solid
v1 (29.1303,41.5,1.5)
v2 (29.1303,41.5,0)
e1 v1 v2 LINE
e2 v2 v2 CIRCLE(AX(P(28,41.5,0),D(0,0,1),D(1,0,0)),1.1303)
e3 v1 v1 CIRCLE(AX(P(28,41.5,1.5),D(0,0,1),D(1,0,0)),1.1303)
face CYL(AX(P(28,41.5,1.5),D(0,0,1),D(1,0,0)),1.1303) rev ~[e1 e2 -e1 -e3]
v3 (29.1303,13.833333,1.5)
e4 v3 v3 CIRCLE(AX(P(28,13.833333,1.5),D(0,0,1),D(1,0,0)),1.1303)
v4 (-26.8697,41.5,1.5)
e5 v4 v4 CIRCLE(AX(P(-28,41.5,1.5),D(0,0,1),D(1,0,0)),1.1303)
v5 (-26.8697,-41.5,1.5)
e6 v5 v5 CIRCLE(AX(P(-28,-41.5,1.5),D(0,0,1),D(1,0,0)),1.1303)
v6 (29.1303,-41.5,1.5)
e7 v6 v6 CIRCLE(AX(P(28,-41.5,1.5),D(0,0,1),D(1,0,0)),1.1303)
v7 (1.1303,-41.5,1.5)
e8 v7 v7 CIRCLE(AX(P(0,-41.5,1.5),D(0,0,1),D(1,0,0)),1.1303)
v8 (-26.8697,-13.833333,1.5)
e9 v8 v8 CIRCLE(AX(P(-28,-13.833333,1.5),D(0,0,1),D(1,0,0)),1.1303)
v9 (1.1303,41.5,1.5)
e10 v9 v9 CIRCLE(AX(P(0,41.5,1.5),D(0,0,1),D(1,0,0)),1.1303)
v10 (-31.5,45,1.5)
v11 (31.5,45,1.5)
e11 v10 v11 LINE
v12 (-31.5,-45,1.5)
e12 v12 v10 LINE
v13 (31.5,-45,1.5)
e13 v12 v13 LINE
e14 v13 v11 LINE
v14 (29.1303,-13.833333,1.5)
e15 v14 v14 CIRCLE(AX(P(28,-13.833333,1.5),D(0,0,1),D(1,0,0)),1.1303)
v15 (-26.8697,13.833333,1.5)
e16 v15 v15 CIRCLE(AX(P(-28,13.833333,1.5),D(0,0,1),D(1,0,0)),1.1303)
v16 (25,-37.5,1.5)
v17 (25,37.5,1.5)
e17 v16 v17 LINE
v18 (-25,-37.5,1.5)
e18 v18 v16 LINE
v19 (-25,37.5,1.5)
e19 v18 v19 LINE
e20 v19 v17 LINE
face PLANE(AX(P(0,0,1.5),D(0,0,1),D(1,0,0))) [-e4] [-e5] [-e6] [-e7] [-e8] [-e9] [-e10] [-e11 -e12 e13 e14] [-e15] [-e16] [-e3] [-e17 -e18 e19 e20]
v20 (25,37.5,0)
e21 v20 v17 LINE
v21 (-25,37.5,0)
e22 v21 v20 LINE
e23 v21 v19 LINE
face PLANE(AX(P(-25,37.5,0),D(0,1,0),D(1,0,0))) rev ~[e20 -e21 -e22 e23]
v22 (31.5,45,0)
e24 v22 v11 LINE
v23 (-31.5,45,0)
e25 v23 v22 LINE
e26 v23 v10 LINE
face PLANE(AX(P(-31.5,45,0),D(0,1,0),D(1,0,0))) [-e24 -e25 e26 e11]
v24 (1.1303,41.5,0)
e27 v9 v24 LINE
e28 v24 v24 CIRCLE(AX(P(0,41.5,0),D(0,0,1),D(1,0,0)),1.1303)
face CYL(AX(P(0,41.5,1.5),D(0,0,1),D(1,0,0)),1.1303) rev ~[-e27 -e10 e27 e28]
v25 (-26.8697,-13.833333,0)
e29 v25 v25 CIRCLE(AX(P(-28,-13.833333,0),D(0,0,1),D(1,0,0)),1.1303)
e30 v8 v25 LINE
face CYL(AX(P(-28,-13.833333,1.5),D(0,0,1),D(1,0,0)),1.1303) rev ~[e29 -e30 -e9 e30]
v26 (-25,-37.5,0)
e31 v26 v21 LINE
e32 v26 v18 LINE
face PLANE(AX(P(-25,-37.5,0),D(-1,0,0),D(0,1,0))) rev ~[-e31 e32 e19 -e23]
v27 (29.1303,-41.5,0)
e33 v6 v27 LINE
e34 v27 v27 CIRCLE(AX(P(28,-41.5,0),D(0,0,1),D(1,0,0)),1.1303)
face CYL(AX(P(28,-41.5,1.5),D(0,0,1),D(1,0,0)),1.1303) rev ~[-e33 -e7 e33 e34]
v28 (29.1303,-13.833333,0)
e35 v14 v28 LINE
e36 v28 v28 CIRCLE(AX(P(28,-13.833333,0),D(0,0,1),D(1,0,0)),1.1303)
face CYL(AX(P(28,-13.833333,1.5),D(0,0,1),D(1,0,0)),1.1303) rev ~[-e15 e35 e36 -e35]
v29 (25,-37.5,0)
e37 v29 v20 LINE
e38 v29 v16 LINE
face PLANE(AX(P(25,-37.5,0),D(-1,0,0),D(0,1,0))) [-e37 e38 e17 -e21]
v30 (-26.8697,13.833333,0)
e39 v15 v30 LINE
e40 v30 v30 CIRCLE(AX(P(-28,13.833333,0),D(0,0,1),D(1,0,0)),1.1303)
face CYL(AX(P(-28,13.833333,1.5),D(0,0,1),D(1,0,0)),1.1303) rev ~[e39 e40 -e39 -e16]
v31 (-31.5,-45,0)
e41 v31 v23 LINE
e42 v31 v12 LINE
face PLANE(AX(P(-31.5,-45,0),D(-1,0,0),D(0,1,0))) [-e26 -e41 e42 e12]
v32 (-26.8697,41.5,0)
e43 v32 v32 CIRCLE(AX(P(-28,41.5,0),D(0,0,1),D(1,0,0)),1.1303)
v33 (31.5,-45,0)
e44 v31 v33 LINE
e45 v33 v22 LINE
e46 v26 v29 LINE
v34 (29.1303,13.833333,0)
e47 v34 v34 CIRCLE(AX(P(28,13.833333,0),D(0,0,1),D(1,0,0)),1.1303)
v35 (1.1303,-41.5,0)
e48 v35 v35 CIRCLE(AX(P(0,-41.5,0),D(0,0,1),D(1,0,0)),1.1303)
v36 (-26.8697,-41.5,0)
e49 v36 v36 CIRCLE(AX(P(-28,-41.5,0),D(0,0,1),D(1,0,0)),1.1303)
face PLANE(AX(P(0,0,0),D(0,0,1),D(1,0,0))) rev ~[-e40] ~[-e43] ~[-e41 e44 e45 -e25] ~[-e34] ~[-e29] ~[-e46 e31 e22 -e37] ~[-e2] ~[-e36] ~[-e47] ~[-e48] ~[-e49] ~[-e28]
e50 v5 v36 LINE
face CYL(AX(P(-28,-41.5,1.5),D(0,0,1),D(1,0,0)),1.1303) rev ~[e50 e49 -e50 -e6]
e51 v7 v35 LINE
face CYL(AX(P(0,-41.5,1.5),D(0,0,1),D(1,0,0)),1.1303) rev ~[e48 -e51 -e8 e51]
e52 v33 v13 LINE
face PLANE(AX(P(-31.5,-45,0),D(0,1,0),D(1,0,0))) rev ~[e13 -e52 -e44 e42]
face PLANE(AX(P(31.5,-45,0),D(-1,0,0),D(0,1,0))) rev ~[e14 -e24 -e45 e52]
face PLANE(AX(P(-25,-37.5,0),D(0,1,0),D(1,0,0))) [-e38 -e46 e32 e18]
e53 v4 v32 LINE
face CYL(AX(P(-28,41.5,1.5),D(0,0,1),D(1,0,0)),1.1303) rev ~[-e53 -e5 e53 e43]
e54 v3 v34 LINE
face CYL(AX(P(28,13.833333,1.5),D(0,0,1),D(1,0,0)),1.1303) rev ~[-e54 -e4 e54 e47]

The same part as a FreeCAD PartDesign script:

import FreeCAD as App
import Part
import Sketcher
from FreeCAD import Vector

doc = App.newDocument("Part")
params = doc.addObject("Spreadsheet::Sheet", "Params")
for row, (alias, value) in enumerate([
    ("sketch1_width", "63 mm"),
    ("sketch1_width2", "50 mm"),
    ("sketch1_height", "90 mm"),
    ("sketch1_height2", "75 mm"),
    ("pad1_length", "1.5 mm"),
    ("pocket1_length", "25 mm"),
], start=1):
    params.set(f"A{row}", alias)
    params.set(f"B{row}", "=" + value)
    params.setAlias(f"B{row}", alias)

body = doc.addObject("PartDesign::Body", "Body")

# Sketch on XY plane
sketch1 = body.newObject("Sketcher::SketchObject", "Sketch")
sketch1.AttachmentSupport = (doc.getObject("XY_Plane"), [""])
sketch1.MapMode = "FlatFace"
sketch1.addGeometry([
    Part.LineSegment(Vector(-31.5, 45, 0), Vector(-31.5, -45, 0)),  # 0
    Part.LineSegment(Vector(-31.5, -45, 0), Vector(31.5, -45, 0)),  # 1
    Part.LineSegment(Vector(31.5, -45, 0), Vector(31.5, 45, 0)),  # 2
    Part.LineSegment(Vector(31.5, 45, 0), Vector(-31.5, 45, 0)),  # 3
    Part.LineSegment(Vector(25, -37.5, 0), Vector(-25, -37.5, 0)),  # 4
    Part.LineSegment(Vector(-25, -37.5, 0), Vector(-25, 37.5, 0)),  # 5
    Part.LineSegment(Vector(-25, 37.5, 0), Vector(25, 37.5, 0)),  # 6
    Part.LineSegment(Vector(25, 37.5, 0), Vector(25, -37.5, 0)),  # 7
], False)
sketch1.addConstraint([
    Sketcher.Constraint("Coincident", 0, 2, 1, 1),
    Sketcher.Constraint("Coincident", 1, 2, 2, 1),
    Sketcher.Constraint("Coincident", 2, 2, 3, 1),
    Sketcher.Constraint("Coincident", 3, 2, 0, 1),
    Sketcher.Constraint("Coincident", 4, 2, 5, 1),
    Sketcher.Constraint("Coincident", 5, 2, 6, 1),
    Sketcher.Constraint("Coincident", 6, 2, 7, 1),
    Sketcher.Constraint("Coincident", 7, 2, 4, 1),
    Sketcher.Constraint("Vertical", 0),
    Sketcher.Constraint("Horizontal", 1),
    Sketcher.Constraint("Vertical", 2),
    Sketcher.Constraint("Horizontal", 3),
    Sketcher.Constraint("Horizontal", 4),
    Sketcher.Constraint("Vertical", 5),
    Sketcher.Constraint("Horizontal", 6),
    Sketcher.Constraint("Vertical", 7),
    Sketcher.Constraint("Symmetric", 0, 2, 2, 2, -1, 1),
    Sketcher.Constraint("Symmetric", 4, 2, 6, 2, -1, 1),
    Sketcher.Constraint("DistanceX", 1, 1, 1, 2, 63.0),
    Sketcher.Constraint("DistanceX", 4, 2, 4, 1, 50.0),
    Sketcher.Constraint("DistanceY", 0, 2, 0, 1, 90.0),
    Sketcher.Constraint("DistanceY", 5, 1, 5, 2, 75.0),
])
sketch1.setExpression("Constraints[18]", "Params.sketch1_width")
sketch1.setExpression("Constraints[19]", "Params.sketch1_width2")
sketch1.setExpression("Constraints[20]", "Params.sketch1_height")
sketch1.setExpression("Constraints[21]", "Params.sketch1_height2")
pad1 = body.newObject("PartDesign::Pad", "Pad")
pad1.Profile = sketch1
pad1.setExpression("Length", "Params.pad1_length")

# Sketch on XY plane
sketch2 = body.newObject("Sketcher::SketchObject", "Sketch001")
sketch2.AttachmentSupport = (doc.getObject("XY_Plane"), [""])
sketch2.MapMode = "FlatFace"
sketch2.AttachmentOffset = App.Placement(Vector(0, 0, 1.5), App.Rotation())
sketch2.addGeometry([
    Part.Circle(Vector(0, 41.5, 0), Vector(0, 0, 1), 1.1303),  # 0
    Part.Circle(Vector(28, 41.5, 0), Vector(0, 0, 1), 1.1303),  # 1
    Part.Circle(Vector(28, -13.833333, 0), Vector(0, 0, 1), 1.1303),  # 2
    Part.Circle(Vector(28, -41.5, 0), Vector(0, 0, 1), 1.1303),  # 3
    Part.Circle(Vector(0, -41.5, 0), Vector(0, 0, 1), 1.1303),  # 4
    Part.Circle(Vector(-28, -41.5, 0), Vector(0, 0, 1), 1.1303),  # 5
    Part.Circle(Vector(-28, -13.833333, 0), Vector(0, 0, 1), 1.1303),  # 6
    Part.Circle(Vector(-28, 13.833333, 0), Vector(0, 0, 1), 1.1303),  # 7
    Part.Circle(Vector(-28, 41.5, 0), Vector(0, 0, 1), 1.1303),  # 8
    Part.Circle(Vector(28, 13.833333, 0), Vector(0, 0, 1), 1.1303),  # 9
], False)
sketch2.addConstraint([
    Sketcher.Constraint("Equal", 0, 1),
    Sketcher.Constraint("Equal", 1, 2),
    Sketcher.Constraint("Equal", 2, 3),
    Sketcher.Constraint("Equal", 3, 4),
    Sketcher.Constraint("Equal", 4, 5),
    Sketcher.Constraint("Equal", 5, 6),
    Sketcher.Constraint("Equal", 6, 7),
    Sketcher.Constraint("Equal", 7, 8),
    Sketcher.Constraint("Equal", 8, 9),
    Sketcher.Constraint("Symmetric", 0, 3, 4, 3, -1, 1),
    Sketcher.Constraint("Symmetric", 1, 3, 5, 3, -1, 1),
    Sketcher.Constraint("Symmetric", 2, 3, 7, 3, -1, 1),
    Sketcher.Constraint("Symmetric", 3, 3, 8, 3, -1, 1),
    Sketcher.Constraint("Symmetric", 6, 3, 9, 3, -1, 1),
    Sketcher.Constraint("Symmetric", 3, 3, 5, 3, -2),
    Sketcher.Constraint("Symmetric", 2, 3, 6, 3, -2),
    Sketcher.Constraint("PointOnObject", 0, 3, -2),
    Sketcher.Constraint("Horizontal", 0, 3, 1, 3),
    Sketcher.Constraint("Vertical", 1, 3, 2, 3),
    Sketcher.Constraint("DistanceX", -1, 1, 1, 3, 28.0),
    Sketcher.Constraint("DistanceY", 3, 3, 1, 3, 83.0),
    Sketcher.Constraint("Diameter", 0, 2.2606),
    Sketcher.Constraint("DistanceY", 2, 3, -1, 1, 13.833333),
])
pocket1 = body.newObject("PartDesign::Pocket", "Pocket")
pocket1.Profile = sketch2
pocket1.setExpression("Length", "Params.pocket1_length")

doc.recompute()
